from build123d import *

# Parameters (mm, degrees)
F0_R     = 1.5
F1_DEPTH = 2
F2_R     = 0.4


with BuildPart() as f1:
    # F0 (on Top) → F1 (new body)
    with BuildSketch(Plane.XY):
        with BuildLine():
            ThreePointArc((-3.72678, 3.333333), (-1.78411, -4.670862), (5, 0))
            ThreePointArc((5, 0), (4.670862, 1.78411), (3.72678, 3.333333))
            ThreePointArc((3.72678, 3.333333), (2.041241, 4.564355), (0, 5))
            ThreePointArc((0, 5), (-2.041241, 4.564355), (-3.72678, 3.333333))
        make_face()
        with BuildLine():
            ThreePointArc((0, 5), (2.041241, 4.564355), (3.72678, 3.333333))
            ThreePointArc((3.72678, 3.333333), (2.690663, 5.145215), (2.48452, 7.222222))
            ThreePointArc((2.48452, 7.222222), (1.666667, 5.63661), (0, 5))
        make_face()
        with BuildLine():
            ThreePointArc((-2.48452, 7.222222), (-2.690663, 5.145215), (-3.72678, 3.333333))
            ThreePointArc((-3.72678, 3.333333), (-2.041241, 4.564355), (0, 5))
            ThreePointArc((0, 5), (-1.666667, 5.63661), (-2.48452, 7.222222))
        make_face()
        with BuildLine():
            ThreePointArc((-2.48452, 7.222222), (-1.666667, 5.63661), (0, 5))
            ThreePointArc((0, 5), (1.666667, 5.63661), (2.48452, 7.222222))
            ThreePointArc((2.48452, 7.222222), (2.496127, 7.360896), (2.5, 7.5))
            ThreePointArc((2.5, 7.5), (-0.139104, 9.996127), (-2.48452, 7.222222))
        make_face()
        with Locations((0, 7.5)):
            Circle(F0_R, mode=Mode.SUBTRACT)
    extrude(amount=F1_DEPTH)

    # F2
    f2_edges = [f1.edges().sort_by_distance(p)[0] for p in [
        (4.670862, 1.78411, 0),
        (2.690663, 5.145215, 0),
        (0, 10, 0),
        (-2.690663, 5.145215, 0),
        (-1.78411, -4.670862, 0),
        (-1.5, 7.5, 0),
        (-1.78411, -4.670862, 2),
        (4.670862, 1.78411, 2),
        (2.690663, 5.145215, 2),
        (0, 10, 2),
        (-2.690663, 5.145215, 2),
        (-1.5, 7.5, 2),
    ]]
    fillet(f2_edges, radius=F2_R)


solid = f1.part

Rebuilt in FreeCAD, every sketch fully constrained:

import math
import FreeCAD as App
import Part
import Sketcher
Q = App.Units.Quantity


def edges_at(feature, points):
    """Names of the edges that pass closest to the given points."""
    edges = feature.Shape.Edges
    near = lambda p: min(range(len(edges)), key=lambda i: edges[i].distToShape(Part.Vertex(*p))[0])
    return sorted({f"Edge{near(p) + 1}" for p in points})

doc = App.newDocument("Part")
body = doc.addObject("PartDesign::Body", "Body")

# Sketch on XY plane
sketch1 = doc.addObject("Sketcher::SketchObject", "Sketch")
body.addObject(sketch1)
sketch1.AttachmentSupport = (doc.XY_Plane, [""])
sketch1.MapMode = "FlatFace"
sketch1.addGeometry(Part.ArcOfCircle(Part.Circle(App.Vector(0, 0, 0), App.Vector(0, 0, 1), 5), math.radians(138.189688), math.radians(360.000001)), False)
sketch1.addGeometry(Part.ArcOfCircle(Part.Circle(App.Vector(0.000002, 0, 0), App.Vector(0, 0, 1), 4.999998), math.radians(-0.000005), math.radians(41.810323)), False)
sketch1.addGeometry(Part.ArcOfCircle(Part.Circle(App.Vector(7.453558, 6.666666, 0), App.Vector(0, 0, 1), 4.999998), math.radians(173.620621), math.radians(221.810323)), False)
sketch1.addGeometry(Part.ArcOfCircle(Part.Circle(App.Vector(-0.000026, 7.500001, 0), App.Vector(0, 0, 1), 2.500026), math.radians(-6.379332), math.radians(-0.000023)), False)
sketch1.addGeometry(Part.ArcOfCircle(Part.Circle(App.Vector(0, 7.5, 0), App.Vector(0, 0, 1), 2.5), math.radians(0.000001), math.radians(186.379374)), False)
sketch1.addGeometry(Part.ArcOfCircle(Part.Circle(App.Vector(-7.453558, 6.666666, 0), App.Vector(0, 0, 1), 4.999998), math.radians(-41.810323), math.radians(6.379379)), False)
sketch1.addGeometry(Part.Circle(App.Vector(0, 7.5, 0), App.Vector(0, 0, 1), 1.5), False)
sketch1.addConstraint(Sketcher.Constraint("Coincident", 0, 2, 1, 1))
sketch1.addConstraint(Sketcher.Constraint("Coincident", 1, 2, 2, 2))
sketch1.addConstraint(Sketcher.Constraint("Coincident", 2, 1, 3, 1))
sketch1.addConstraint(Sketcher.Constraint("Coincident", 3, 2, 4, 1))
sketch1.addConstraint(Sketcher.Constraint("Coincident", 4, 2, 5, 2))
sketch1.addConstraint(Sketcher.Constraint("Coincident", 5, 1, 0, 1))
sketch1.addConstraint(Sketcher.Constraint("Coincident", 0, 3, -1, 1))
sketch1.addConstraint(Sketcher.Constraint("Coincident", 1, 3, -1, 1))
sketch1.addConstraint(Sketcher.Constraint("Coincident", 6, 3, 4, 3))
sketch1.addConstraint(Sketcher.Constraint("PointOnObject", 4, 3, -2))
sketch1.addConstraint(Sketcher.Constraint("PointOnObject", 0, 2, -1))
sketch1.addConstraint(Sketcher.Constraint("Diameter", 6, Q("3 mm")))
sketch1.addConstraint(Sketcher.Constraint("Radius", 0, Q("5 mm")))
sketch1.addConstraint(Sketcher.Constraint("Radius", 2, Q("4.999998 mm")))
sketch1.addConstraint(Sketcher.Constraint("Radius", 5, Q("4.999998 mm")))
sketch1.addConstraint(Sketcher.Constraint("Radius", 4, Q("2.5 mm")))
sketch1.addConstraint(Sketcher.Constraint("DistanceY", -1, 1, 3, 3, Q("7.500001 mm")))
sketch1.addConstraint(Sketcher.Constraint("DistanceY", -1, 1, 4, 3, Q("7.5 mm")))
sketch1.addConstraint(Sketcher.Constraint("DistanceY", -1, 1, 3, 2, Q("7.5 mm")))
sketch1.addConstraint(Sketcher.Constraint("Radius", 3, Q("2.500026 mm")))
sketch1.addConstraint(Sketcher.Constraint("DistanceX", -1, 1, 1, 2, Q("3.72678 mm")))
sketch1.addConstraint(Sketcher.Constraint("DistanceX", -1, 1, 2, 1, Q("2.48452 mm")))
sketch1.addConstraint(Sketcher.Constraint("DistanceX", 4, 2, -1, 1, Q("2.48452 mm")))
sketch1.addConstraint(Sketcher.Constraint("DistanceX", 5, 1, -1, 1, Q("3.72678 mm")))
pad1 = doc.addObject("PartDesign::Pad", "Pad")
body.addObject(pad1)
pad1.Profile = sketch1
pad1.Length = 2
doc.recompute()

fillet = doc.addObject("PartDesign::Fillet", "Fillet")
body.addObject(fillet)
fillet.Base = (pad1, edges_at(pad1, [
    (4.671, 1.784, 0),
    (2.691, 5.145, 0),
    (-0.139, 9.996, 0),
    (-2.691, 5.145, 0),
    (-1.784, -4.671, 0),
    (-1.5, 7.5, 0),
    (-1.784, -4.671, 2),
    (4.671, 1.784, 2),
    (2.691, 5.145, 2),
    (-0.139, 9.996, 2),
    (-2.691, 5.145, 2),
    (-1.5, 7.5, 2),
]))
fillet.Radius = 0.4

doc.recompute()
